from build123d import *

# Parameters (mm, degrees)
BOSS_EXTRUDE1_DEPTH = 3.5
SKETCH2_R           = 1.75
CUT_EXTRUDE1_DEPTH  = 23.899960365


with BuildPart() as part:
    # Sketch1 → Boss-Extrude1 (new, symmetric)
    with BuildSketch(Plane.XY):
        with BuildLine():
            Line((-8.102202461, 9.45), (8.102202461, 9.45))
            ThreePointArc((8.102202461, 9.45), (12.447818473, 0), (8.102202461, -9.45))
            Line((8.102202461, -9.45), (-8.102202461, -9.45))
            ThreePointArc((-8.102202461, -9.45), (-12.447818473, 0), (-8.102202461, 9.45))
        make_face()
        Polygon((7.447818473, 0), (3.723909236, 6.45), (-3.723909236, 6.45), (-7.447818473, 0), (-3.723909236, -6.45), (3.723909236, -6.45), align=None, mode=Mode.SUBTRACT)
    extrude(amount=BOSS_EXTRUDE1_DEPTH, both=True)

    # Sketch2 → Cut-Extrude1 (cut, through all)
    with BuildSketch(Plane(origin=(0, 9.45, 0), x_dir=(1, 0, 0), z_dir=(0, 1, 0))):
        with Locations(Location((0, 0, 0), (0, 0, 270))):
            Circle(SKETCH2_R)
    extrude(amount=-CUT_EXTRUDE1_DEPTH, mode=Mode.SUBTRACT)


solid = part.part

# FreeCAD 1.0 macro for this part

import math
import FreeCAD as App
import Part
import Sketcher
from FreeCAD import Vector
Q = App.Units.Quantity

doc = App.newDocument("Part")
body = doc.addObject("PartDesign::Body", "Body")

# Sketch on XY plane
sketch1 = doc.addObject("Sketcher::SketchObject", "Sketch")
body.addObject(sketch1)
sketch1.AttachmentSupport = (doc.XY_Plane, [""])
sketch1.MapMode = "FlatFace"
sketch1.addGeometry(Part.LineSegment(Vector(8.102202, 9.45, 0), Vector(-8.102202, 9.45, 0)), False)
sketch1.addGeometry(Part.ArcOfCircle(Part.Circle(Vector(0, 0, 0), Vector(0, 0, 1), 12.447818), math.radians(130.608992), math.radians(229.391008)), False)
sketch1.addGeometry(Part.LineSegment(Vector(-8.102202, -9.45, 0), Vector(8.102202, -9.45, 0)), False)
sketch1.addGeometry(Part.ArcOfCircle(Part.Circle(Vector(0, 0, 0), Vector(0, 0, 1), 12.447818), math.radians(-49.391008), math.radians(49.391008)), False)
sketch1.addGeometry(Part.LineSegment(Vector(7.447818, 0, 0), Vector(3.723909, -6.45, 0)), False)
sketch1.addGeometry(Part.LineSegment(Vector(3.723909, -6.45, 0), Vector(-3.723909, -6.45, 0)), False)
sketch1.addGeometry(Part.LineSegment(Vector(-3.723909, -6.45, 0), Vector(-7.447818, 0, 0)), False)
sketch1.addGeometry(Part.LineSegment(Vector(-7.447818, 0, 0), Vector(-3.723909, 6.45, 0)), False)
sketch1.addGeometry(Part.LineSegment(Vector(-3.723909, 6.45, 0), Vector(3.723909, 6.45, 0)), False)
sketch1.addGeometry(Part.LineSegment(Vector(3.723909, 6.45, 0), Vector(7.447818, 0, 0)), False)
sketch1.addConstraint(Sketcher.Constraint("Coincident", 0, 2, 1, 1))
sketch1.addConstraint(Sketcher.Constraint("Coincident", 1, 2, 2, 1))
sketch1.addConstraint(Sketcher.Constraint("Coincident", 2, 2, 3, 1))
sketch1.addConstraint(Sketcher.Constraint("Coincident", 3, 2, 0, 1))
sketch1.addConstraint(Sketcher.Constraint("Coincident", 4, 2, 5, 1))
sketch1.addConstraint(Sketcher.Constraint("Coincident", 5, 2, 6, 1))
sketch1.addConstraint(Sketcher.Constraint("Coincident", 6, 2, 7, 1))
sketch1.addConstraint(Sketcher.Constraint("Coincident", 7, 2, 8, 1))
sketch1.addConstraint(Sketcher.Constraint("Coincident", 8, 2, 9, 1))
sketch1.addConstraint(Sketcher.Constraint("Coincident", 9, 2, 4, 1))
sketch1.addConstraint(Sketcher.Constraint("Horizontal", 0))
sketch1.addConstraint(Sketcher.Constraint("Horizontal", 2))
sketch1.addConstraint(Sketcher.Constraint("Horizontal", 5))
sketch1.addConstraint(Sketcher.Constraint("Horizontal", 8))
sketch1.addConstraint(Sketcher.Constraint("Coincident", 1, 3, -1, 1))
sketch1.addConstraint(Sketcher.Constraint("Coincident", 3, 3, -1, 1))
sketch1.addConstraint(Sketcher.Constraint("Equal", 1, 3))
sketch1.addConstraint(Sketcher.Constraint("Symmetric", 4, 2, 7, 2, -1, 1))
sketch1.addConstraint(Sketcher.Constraint("Symmetric", 6, 2, 9, 2, -1, 1))
sketch1.addConstraint(Sketcher.Constraint("PointOnObject", 6, 2, -1))
sketch1.addConstraint(Sketcher.Constraint("Parallel", 6, 9))
sketch1.addConstraint(Sketcher.Constraint("Vertical", 0, 2, 1, 2))
sketch1.addConstraint(Sketcher.Constraint("Vertical", 5, 2, 7, 2))
sketch1.addConstraint(Sketcher.Constraint("Angle", 4, Q("-120 deg")))
sketch1.addConstraint(Sketcher.Constraint("DistanceY", 2, 2, 4, 2, 3.0))
sketch1.addConstraint(Sketcher.Constraint("DistanceY", 1, 2, 0, 2, 18.9))
sketch1.addConstraint(Sketcher.Constraint("Radius", 1, 12.447818))
sketch1.addConstraint(Sketcher.Constraint("DistanceX", 5, 2, 5, 1, 7.447818))
pad1 = doc.addObject("PartDesign::Pad", "Pad")
body.addObject(pad1)
pad1.Profile = sketch1
pad1.Length = 7
pad1.Midplane = True

# Sketch on XZ plane
sketch2 = doc.addObject("Sketcher::SketchObject", "Sketch001")
body.addObject(sketch2)
sketch2.AttachmentSupport = (doc.XZ_Plane, [""])
sketch2.MapMode = "FlatFace"
sketch2.AttachmentOffset = App.Placement(Vector(0, 0, -9.45), App.Rotation())
sketch2.addGeometry(Part.Circle(Vector(0, 0, 0), Vector(0, 0, 1), 1.75), False)
sketch2.addConstraint(Sketcher.Constraint("Coincident", 0, 3, -1, 1))
sketch2.addConstraint(Sketcher.Constraint("Diameter", 0, 3.5))
pocket1 = doc.addObject("PartDesign::Pocket", "Pocket")
body.addObject(pocket1)
pocket1.Profile = sketch2
pocket1.Type = "ThroughAll"
pocket1.Reversed = True

doc.recompute()
